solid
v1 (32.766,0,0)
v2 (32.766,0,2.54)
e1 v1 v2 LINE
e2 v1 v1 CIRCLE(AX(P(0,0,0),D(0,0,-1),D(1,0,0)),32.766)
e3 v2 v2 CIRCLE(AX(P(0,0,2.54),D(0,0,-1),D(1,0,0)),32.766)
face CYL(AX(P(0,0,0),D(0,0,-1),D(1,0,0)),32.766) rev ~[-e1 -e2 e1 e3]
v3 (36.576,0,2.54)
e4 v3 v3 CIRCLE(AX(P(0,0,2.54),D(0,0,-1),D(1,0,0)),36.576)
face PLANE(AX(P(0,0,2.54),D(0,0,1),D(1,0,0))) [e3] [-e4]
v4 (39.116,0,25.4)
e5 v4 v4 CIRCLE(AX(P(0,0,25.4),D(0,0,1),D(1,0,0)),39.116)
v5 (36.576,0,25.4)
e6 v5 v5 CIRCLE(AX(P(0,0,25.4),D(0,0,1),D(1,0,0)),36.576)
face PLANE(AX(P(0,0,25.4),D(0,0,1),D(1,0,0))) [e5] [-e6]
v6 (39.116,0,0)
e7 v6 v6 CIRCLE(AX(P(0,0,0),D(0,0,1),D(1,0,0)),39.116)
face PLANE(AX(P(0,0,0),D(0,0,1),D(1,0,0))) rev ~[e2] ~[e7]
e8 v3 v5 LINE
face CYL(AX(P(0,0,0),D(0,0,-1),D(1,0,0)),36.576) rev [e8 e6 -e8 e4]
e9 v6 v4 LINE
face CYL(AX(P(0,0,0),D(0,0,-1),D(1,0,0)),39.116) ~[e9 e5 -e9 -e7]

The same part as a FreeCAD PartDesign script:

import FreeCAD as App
import Part
import Sketcher
from FreeCAD import Vector
Q = App.Units.Quantity


def faces_at(feature, points):
    """Names of the faces that lie closest to the given points."""
    faces = feature.Shape.Faces
    near = lambda p: min(range(len(faces)), key=lambda i: faces[i].distToShape(Part.Vertex(*p))[0])
    return sorted({f"Face{near(p) + 1}" for p in points})

doc = App.newDocument("Part")
params = doc.addObject("Spreadsheet::Sheet", "Params")
for row, (alias, value) in enumerate([
    ("sketch1_diameter", "3.08 in"),
    ("pad1_length", "1 in"),
    ("thickness_wall", "0.1 in"),
    ("sketch2_diameter", "2.58 in"),
    ("pocket1_length", "1 in"),
], start=1):
    params.set(f"A{row}", alias)
    params.set(f"B{row}", "=" + value)
    params.setAlias(f"B{row}", alias)

body = doc.addObject("PartDesign::Body", "Body")

sketch1 = body.newObject("Sketcher::SketchObject", "Sketch")
sketch1.AttachmentSupport = (doc.getObject("XY_Plane"), [""])
sketch1.MapMode = "FlatFace"
sketch1.addGeometry(Part.Circle(Vector(0, 0, 0), Vector(0, 0, 1), 39), False)
sketch1.addConstraint([
    Sketcher.Constraint("Coincident", 0, 3, -1, 1),
    Sketcher.Constraint("Diameter", 0, Q("3.08 in")),
])
sketch1.setExpression("Constraints[1]", "Params.sketch1_diameter")
pad1 = body.newObject("PartDesign::Pad", "Pad")
pad1.Profile = sketch1
pad1.setExpression("Length", "Params.pad1_length")
doc.recompute()

thickness = body.newObject("PartDesign::Thickness", "Thickness")
thickness.Base = (pad1, faces_at(pad1, [(0, 0, 25.4)]))
thickness.setExpression("Value", "Params.thickness_wall")
thickness.Reversed = True
thickness.Join = "Arc"

sketch2 = body.newObject("Sketcher::SketchObject", "Sketch001")
sketch2.AttachmentSupport = (doc.getObject("XY_Plane"), [""])
sketch2.MapMode = "FlatFace"
sketch2.addGeometry(Part.Circle(Vector(0, 0, 0), Vector(0, 0, 1), 33), False)
sketch2.addConstraint([
    Sketcher.Constraint("Coincident", 0, 3, -1, 1),
    Sketcher.Constraint("Diameter", 0, Q("2.58 in")),
])
sketch2.setExpression("Constraints[1]", "Params.sketch2_diameter")
pocket1 = body.newObject("PartDesign::Pocket", "Pocket")
pocket1.Profile = sketch2
pocket1.setExpression("Length", "Params.pocket1_length")
pocket1.Reversed = True

doc.recompute()
